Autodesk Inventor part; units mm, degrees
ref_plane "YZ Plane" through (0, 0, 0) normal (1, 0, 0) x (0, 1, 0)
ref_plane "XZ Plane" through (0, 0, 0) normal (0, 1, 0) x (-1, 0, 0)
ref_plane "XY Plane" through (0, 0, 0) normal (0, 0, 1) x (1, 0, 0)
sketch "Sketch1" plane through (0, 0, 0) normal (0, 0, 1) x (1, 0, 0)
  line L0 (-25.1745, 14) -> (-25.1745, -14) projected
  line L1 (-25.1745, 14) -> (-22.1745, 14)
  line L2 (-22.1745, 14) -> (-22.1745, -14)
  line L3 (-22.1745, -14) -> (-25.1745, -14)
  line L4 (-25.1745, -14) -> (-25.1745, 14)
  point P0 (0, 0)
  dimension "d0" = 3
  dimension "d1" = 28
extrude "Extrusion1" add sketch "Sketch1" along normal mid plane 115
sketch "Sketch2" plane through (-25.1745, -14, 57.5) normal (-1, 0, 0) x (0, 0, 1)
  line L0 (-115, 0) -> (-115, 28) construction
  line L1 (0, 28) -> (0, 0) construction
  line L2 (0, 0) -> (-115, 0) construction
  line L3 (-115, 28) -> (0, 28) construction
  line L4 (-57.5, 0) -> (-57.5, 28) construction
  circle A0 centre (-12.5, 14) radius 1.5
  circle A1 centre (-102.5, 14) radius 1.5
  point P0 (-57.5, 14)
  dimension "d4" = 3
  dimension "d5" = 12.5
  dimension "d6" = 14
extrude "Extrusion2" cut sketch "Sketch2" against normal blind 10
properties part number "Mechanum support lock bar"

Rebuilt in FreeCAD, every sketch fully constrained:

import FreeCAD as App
import Part
import Sketcher
from FreeCAD import Vector

doc = App.newDocument("Part")
body = doc.addObject("PartDesign::Body", "Body")

sketch1 = doc.addObject("Sketcher::SketchObject", "Sketch")
body.addObject(sketch1)
sketch1.AttachmentSupport = (doc.XY_Plane, [""])
sketch1.MapMode = "FlatFace"
sketch1.addGeometry([
    Part.LineSegment(Vector(-22.2, 14, 0), Vector(-25.2, 14, 0)),
    Part.LineSegment(Vector(-25.2, 14, 0), Vector(-25.2, -14, 0)),
    Part.LineSegment(Vector(-25.2, -14, 0), Vector(-22.2, -14, 0)),
    Part.LineSegment(Vector(-22.2, -14, 0), Vector(-22.2, 14, 0)),
], False)
sketch1.addConstraint([
    Sketcher.Constraint("Coincident", 0, 2, 1, 1),
    Sketcher.Constraint("Coincident", 1, 2, 2, 1),
    Sketcher.Constraint("Coincident", 2, 2, 3, 1),
    Sketcher.Constraint("Coincident", 3, 2, 0, 1),
    Sketcher.Constraint("Horizontal", 0),
    Sketcher.Constraint("Vertical", 1),
    Sketcher.Constraint("Horizontal", 2),
    Sketcher.Constraint("Vertical", 3),
    Sketcher.Constraint("DistanceX", 0, 2, 0, 1, 3.0),
    Sketcher.Constraint("DistanceY", 1, 2, 1, 1, 28.0),
    Sketcher.Constraint("DistanceY", -1, 1, 0, 2, 14.0),
    Sketcher.Constraint("DistanceX", 0, 2, -1, 1, 25.1745),
])
pad1 = doc.addObject("PartDesign::Pad", "Pad")
body.addObject(pad1)
pad1.Profile = sketch1
pad1.Length = 115
pad1.Midplane = True

sketch2 = doc.addObject("Sketcher::SketchObject", "Sketch001")
body.addObject(sketch2)
sketch2.AttachmentSupport = (doc.YZ_Plane, [""])
sketch2.MapMode = "FlatFace"
sketch2.AttachmentOffset = App.Placement(Vector(0, 0, -25.1745), App.Rotation())
sketch2.addGeometry([
    Part.Circle(Vector(0, 45, 0), Vector(0, 0, 1), 1.5),
    Part.Circle(Vector(0, -45, 0), Vector(0, 0, 1), 1.5),
], False)
sketch2.addConstraint([
    Sketcher.Constraint("Equal", 0, 1),
    Sketcher.Constraint("Symmetric", 0, 3, 1, 3, -1, 1),
    Sketcher.Constraint("PointOnObject", 0, 3, -2),
    Sketcher.Constraint("Diameter", 0, 3.0),
    Sketcher.Constraint("DistanceY", -1, 1, 0, 3, 45.0),
])
pocket1 = doc.addObject("PartDesign::Pocket", "Pocket")
body.addObject(pocket1)
pocket1.Profile = sketch2
pocket1.Length = 10
pocket1.Reversed = True

doc.recompute()
